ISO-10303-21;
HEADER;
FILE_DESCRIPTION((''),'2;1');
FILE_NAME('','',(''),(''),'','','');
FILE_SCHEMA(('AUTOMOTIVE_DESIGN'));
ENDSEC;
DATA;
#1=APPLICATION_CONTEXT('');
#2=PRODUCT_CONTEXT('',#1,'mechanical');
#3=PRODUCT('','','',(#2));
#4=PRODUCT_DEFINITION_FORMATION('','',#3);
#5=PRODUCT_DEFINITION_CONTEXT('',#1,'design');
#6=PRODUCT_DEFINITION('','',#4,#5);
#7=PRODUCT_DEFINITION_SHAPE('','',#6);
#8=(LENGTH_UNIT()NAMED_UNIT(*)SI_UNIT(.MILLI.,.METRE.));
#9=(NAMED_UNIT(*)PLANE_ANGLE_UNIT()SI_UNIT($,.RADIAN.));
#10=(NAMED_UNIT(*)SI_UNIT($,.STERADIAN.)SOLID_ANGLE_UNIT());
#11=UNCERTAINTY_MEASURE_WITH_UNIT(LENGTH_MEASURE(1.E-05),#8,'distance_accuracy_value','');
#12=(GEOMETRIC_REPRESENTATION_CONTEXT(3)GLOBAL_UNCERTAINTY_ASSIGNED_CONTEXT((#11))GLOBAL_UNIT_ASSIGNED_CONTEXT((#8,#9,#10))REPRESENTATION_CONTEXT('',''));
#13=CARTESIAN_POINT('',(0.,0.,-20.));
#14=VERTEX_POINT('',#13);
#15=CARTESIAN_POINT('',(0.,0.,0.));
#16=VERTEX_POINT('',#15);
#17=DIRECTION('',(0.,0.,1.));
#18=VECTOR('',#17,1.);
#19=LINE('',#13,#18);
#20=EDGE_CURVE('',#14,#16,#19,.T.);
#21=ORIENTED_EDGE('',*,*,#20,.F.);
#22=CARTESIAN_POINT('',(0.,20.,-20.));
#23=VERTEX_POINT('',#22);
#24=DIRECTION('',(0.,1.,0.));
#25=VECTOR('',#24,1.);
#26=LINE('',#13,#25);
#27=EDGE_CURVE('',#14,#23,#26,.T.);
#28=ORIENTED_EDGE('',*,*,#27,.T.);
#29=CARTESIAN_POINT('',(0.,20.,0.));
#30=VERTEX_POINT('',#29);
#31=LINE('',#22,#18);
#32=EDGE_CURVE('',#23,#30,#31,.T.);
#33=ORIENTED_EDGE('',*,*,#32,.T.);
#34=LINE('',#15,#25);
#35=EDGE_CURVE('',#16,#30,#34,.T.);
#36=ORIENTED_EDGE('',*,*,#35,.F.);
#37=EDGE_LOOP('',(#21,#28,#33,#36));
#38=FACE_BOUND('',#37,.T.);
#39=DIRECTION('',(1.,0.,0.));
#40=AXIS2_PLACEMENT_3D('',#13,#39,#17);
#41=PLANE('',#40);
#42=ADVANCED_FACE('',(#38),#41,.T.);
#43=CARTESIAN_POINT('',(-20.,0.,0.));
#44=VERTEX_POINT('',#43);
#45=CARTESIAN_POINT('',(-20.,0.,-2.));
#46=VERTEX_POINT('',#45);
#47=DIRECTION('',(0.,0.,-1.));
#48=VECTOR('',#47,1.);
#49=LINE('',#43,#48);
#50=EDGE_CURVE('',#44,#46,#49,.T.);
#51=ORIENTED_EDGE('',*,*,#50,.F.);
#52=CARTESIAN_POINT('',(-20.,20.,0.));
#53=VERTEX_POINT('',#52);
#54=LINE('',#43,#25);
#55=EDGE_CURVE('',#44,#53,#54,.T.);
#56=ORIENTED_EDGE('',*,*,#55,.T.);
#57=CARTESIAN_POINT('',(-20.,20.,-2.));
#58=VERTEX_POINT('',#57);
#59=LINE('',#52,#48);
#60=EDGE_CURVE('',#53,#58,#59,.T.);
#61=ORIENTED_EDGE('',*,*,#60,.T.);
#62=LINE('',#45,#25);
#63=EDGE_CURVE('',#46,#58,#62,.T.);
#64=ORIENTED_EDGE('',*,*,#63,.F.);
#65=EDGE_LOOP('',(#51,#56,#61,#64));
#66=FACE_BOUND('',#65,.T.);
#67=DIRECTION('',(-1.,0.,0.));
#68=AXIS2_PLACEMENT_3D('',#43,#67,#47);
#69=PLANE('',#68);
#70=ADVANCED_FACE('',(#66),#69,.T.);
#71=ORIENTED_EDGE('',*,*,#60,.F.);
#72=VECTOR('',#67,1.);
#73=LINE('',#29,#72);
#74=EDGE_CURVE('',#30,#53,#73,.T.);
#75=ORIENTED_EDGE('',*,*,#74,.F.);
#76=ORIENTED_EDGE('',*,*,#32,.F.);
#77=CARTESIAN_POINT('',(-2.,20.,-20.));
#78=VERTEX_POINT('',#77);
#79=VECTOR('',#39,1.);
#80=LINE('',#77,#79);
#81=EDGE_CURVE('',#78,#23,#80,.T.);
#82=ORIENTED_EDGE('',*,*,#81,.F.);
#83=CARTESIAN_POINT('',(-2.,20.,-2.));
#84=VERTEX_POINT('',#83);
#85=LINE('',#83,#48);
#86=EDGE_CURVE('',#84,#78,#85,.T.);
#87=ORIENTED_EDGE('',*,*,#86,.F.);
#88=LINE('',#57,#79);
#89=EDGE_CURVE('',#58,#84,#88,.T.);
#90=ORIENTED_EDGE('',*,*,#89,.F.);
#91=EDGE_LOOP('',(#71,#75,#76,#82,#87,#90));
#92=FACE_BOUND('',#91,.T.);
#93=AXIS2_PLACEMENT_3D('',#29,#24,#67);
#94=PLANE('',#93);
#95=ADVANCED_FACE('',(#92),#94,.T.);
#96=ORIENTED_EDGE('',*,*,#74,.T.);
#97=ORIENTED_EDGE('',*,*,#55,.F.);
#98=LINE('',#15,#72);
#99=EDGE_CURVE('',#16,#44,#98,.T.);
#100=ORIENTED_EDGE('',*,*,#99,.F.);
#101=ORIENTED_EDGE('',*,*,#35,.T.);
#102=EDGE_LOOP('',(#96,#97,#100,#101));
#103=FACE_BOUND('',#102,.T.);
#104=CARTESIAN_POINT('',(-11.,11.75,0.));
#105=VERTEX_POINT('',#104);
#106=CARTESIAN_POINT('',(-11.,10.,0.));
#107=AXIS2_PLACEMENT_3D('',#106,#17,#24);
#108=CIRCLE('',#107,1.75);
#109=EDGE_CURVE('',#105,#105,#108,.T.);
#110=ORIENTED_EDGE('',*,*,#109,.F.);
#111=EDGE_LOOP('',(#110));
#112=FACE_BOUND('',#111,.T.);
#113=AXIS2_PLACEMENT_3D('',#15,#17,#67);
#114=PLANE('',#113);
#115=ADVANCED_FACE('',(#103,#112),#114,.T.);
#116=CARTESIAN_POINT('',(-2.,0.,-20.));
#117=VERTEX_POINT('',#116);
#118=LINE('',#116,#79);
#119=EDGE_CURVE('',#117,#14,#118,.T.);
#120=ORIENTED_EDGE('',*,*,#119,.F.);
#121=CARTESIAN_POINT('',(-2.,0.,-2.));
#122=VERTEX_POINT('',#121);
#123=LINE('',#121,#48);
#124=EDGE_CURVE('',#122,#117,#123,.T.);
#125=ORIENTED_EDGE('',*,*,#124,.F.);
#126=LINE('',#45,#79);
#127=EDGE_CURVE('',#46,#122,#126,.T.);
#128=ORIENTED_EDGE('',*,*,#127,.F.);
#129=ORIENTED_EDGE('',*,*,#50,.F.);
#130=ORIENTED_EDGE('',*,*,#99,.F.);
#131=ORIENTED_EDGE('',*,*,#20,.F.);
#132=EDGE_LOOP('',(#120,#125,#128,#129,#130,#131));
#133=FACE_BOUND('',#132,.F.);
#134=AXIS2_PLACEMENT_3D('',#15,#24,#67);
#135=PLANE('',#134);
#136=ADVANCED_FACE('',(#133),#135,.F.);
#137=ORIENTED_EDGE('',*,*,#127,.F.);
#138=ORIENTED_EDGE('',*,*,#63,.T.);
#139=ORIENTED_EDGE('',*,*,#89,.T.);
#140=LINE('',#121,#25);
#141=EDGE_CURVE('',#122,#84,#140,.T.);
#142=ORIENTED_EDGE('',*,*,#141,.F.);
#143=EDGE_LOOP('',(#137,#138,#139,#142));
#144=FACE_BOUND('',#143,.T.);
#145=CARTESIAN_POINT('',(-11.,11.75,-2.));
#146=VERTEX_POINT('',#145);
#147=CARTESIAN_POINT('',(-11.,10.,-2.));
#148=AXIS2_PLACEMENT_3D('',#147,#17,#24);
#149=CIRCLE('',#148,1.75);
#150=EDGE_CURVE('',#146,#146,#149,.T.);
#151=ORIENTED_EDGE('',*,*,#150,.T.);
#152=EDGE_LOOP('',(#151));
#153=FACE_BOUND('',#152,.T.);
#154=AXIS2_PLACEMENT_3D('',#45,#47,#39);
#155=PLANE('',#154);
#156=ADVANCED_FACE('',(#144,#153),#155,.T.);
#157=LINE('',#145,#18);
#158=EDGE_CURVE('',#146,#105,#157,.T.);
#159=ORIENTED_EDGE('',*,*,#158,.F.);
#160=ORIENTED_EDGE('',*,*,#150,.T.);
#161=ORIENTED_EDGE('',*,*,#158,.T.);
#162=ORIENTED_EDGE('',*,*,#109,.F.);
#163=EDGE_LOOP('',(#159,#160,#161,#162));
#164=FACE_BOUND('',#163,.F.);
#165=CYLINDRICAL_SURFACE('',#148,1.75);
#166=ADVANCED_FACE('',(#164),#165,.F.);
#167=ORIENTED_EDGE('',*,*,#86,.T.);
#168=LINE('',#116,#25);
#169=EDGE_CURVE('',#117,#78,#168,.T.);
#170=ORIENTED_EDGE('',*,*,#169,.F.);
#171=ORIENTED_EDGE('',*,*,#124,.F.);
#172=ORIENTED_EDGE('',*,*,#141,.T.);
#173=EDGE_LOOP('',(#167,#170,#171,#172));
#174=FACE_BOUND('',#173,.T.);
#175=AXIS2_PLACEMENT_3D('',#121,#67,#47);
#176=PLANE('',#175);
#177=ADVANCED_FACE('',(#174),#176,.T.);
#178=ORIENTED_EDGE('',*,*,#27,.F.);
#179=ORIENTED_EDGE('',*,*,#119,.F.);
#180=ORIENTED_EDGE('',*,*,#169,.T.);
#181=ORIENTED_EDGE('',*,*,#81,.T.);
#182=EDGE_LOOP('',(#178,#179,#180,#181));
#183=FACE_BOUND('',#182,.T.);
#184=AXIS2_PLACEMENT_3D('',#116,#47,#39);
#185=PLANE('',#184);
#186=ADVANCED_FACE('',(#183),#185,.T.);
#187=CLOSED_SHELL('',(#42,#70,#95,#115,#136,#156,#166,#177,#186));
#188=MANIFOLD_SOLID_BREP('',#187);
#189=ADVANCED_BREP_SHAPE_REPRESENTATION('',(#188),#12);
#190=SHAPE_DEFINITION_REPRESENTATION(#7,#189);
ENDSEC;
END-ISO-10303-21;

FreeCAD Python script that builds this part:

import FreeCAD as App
import Part
import Sketcher
from FreeCAD import Vector


def add_polygon(sketch, points):
    """Adds a closed chain of lines whose ends are joined by coincident constraints."""
    first, n = sketch.GeometryCount, len(points)
    for a, b in zip(points, points[1:] + points[:1]):
        sketch.addGeometry(Part.LineSegment(App.Vector(*a, 0), App.Vector(*b, 0)), False)
    for i in range(n):
        sketch.addConstraint(Sketcher.Constraint("Coincident", first + i, 2, first + (i + 1) % n, 1))

doc = App.newDocument("Part")
body = doc.addObject("PartDesign::Body", "Body")

sketch1 = doc.addObject("Sketcher::SketchObject", "Sketch")
body.addObject(sketch1)
sketch1.AttachmentSupport = (doc.XZ_Plane, [""])
sketch1.MapMode = "FlatFace"
add_polygon(sketch1, [(-20, 0), (0, 0), (0, -20), (-2, -20), (-2, -2), (-20, -2)])
sketch1.addConstraint([
    Sketcher.Constraint("Horizontal", 0),
    Sketcher.Constraint("Vertical", 1),
    Sketcher.Constraint("Horizontal", 2),
    Sketcher.Constraint("Vertical", 3),
    Sketcher.Constraint("Horizontal", 4),
    Sketcher.Constraint("Vertical", 5),
    Sketcher.Constraint("Coincident", 0, 2, -1, 1),
    Sketcher.Constraint("Equal", 0, 1),
    Sketcher.Constraint("Equal", 4, 3),
    Sketcher.Constraint("DistanceX", 0, 1, 0, 2, 20.0),
    Sketcher.Constraint("DistanceX", 2, 2, 2, 1, 2.0),
])
pad1 = doc.addObject("PartDesign::Pad", "Pad")
body.addObject(pad1)
pad1.Profile = sketch1
pad1.Length = 20
pad1.Reversed = True

sketch2 = doc.addObject("Sketcher::SketchObject", "Sketch001")
body.addObject(sketch2)
sketch2.AttachmentSupport = (doc.XY_Plane, [""])
sketch2.MapMode = "FlatFace"
sketch2.AttachmentOffset = App.Placement(Vector(0, 0, -2), App.Rotation())
sketch2.addGeometry(Part.Circle(Vector(-11, 10, 0), Vector(0, 0, 1), 1.8), False)
sketch2.addConstraint([
    Sketcher.Constraint("Diameter", 0, 3.5),
    Sketcher.Constraint("DistanceX", 0, 3, -1, 1, 11.0),
    Sketcher.Constraint("DistanceY", -1, 1, 0, 3, 10.0),
])
doc.recompute()
hole = doc.addObject("PartDesign::Hole", "Hole")
body.addObject(hole)
hole.Profile = sketch2
hole.ThreadType = "None"
hole.Diameter = 3.5
hole.DepthType = "ThroughAll"
hole.Reversed = True

doc.recompute()
